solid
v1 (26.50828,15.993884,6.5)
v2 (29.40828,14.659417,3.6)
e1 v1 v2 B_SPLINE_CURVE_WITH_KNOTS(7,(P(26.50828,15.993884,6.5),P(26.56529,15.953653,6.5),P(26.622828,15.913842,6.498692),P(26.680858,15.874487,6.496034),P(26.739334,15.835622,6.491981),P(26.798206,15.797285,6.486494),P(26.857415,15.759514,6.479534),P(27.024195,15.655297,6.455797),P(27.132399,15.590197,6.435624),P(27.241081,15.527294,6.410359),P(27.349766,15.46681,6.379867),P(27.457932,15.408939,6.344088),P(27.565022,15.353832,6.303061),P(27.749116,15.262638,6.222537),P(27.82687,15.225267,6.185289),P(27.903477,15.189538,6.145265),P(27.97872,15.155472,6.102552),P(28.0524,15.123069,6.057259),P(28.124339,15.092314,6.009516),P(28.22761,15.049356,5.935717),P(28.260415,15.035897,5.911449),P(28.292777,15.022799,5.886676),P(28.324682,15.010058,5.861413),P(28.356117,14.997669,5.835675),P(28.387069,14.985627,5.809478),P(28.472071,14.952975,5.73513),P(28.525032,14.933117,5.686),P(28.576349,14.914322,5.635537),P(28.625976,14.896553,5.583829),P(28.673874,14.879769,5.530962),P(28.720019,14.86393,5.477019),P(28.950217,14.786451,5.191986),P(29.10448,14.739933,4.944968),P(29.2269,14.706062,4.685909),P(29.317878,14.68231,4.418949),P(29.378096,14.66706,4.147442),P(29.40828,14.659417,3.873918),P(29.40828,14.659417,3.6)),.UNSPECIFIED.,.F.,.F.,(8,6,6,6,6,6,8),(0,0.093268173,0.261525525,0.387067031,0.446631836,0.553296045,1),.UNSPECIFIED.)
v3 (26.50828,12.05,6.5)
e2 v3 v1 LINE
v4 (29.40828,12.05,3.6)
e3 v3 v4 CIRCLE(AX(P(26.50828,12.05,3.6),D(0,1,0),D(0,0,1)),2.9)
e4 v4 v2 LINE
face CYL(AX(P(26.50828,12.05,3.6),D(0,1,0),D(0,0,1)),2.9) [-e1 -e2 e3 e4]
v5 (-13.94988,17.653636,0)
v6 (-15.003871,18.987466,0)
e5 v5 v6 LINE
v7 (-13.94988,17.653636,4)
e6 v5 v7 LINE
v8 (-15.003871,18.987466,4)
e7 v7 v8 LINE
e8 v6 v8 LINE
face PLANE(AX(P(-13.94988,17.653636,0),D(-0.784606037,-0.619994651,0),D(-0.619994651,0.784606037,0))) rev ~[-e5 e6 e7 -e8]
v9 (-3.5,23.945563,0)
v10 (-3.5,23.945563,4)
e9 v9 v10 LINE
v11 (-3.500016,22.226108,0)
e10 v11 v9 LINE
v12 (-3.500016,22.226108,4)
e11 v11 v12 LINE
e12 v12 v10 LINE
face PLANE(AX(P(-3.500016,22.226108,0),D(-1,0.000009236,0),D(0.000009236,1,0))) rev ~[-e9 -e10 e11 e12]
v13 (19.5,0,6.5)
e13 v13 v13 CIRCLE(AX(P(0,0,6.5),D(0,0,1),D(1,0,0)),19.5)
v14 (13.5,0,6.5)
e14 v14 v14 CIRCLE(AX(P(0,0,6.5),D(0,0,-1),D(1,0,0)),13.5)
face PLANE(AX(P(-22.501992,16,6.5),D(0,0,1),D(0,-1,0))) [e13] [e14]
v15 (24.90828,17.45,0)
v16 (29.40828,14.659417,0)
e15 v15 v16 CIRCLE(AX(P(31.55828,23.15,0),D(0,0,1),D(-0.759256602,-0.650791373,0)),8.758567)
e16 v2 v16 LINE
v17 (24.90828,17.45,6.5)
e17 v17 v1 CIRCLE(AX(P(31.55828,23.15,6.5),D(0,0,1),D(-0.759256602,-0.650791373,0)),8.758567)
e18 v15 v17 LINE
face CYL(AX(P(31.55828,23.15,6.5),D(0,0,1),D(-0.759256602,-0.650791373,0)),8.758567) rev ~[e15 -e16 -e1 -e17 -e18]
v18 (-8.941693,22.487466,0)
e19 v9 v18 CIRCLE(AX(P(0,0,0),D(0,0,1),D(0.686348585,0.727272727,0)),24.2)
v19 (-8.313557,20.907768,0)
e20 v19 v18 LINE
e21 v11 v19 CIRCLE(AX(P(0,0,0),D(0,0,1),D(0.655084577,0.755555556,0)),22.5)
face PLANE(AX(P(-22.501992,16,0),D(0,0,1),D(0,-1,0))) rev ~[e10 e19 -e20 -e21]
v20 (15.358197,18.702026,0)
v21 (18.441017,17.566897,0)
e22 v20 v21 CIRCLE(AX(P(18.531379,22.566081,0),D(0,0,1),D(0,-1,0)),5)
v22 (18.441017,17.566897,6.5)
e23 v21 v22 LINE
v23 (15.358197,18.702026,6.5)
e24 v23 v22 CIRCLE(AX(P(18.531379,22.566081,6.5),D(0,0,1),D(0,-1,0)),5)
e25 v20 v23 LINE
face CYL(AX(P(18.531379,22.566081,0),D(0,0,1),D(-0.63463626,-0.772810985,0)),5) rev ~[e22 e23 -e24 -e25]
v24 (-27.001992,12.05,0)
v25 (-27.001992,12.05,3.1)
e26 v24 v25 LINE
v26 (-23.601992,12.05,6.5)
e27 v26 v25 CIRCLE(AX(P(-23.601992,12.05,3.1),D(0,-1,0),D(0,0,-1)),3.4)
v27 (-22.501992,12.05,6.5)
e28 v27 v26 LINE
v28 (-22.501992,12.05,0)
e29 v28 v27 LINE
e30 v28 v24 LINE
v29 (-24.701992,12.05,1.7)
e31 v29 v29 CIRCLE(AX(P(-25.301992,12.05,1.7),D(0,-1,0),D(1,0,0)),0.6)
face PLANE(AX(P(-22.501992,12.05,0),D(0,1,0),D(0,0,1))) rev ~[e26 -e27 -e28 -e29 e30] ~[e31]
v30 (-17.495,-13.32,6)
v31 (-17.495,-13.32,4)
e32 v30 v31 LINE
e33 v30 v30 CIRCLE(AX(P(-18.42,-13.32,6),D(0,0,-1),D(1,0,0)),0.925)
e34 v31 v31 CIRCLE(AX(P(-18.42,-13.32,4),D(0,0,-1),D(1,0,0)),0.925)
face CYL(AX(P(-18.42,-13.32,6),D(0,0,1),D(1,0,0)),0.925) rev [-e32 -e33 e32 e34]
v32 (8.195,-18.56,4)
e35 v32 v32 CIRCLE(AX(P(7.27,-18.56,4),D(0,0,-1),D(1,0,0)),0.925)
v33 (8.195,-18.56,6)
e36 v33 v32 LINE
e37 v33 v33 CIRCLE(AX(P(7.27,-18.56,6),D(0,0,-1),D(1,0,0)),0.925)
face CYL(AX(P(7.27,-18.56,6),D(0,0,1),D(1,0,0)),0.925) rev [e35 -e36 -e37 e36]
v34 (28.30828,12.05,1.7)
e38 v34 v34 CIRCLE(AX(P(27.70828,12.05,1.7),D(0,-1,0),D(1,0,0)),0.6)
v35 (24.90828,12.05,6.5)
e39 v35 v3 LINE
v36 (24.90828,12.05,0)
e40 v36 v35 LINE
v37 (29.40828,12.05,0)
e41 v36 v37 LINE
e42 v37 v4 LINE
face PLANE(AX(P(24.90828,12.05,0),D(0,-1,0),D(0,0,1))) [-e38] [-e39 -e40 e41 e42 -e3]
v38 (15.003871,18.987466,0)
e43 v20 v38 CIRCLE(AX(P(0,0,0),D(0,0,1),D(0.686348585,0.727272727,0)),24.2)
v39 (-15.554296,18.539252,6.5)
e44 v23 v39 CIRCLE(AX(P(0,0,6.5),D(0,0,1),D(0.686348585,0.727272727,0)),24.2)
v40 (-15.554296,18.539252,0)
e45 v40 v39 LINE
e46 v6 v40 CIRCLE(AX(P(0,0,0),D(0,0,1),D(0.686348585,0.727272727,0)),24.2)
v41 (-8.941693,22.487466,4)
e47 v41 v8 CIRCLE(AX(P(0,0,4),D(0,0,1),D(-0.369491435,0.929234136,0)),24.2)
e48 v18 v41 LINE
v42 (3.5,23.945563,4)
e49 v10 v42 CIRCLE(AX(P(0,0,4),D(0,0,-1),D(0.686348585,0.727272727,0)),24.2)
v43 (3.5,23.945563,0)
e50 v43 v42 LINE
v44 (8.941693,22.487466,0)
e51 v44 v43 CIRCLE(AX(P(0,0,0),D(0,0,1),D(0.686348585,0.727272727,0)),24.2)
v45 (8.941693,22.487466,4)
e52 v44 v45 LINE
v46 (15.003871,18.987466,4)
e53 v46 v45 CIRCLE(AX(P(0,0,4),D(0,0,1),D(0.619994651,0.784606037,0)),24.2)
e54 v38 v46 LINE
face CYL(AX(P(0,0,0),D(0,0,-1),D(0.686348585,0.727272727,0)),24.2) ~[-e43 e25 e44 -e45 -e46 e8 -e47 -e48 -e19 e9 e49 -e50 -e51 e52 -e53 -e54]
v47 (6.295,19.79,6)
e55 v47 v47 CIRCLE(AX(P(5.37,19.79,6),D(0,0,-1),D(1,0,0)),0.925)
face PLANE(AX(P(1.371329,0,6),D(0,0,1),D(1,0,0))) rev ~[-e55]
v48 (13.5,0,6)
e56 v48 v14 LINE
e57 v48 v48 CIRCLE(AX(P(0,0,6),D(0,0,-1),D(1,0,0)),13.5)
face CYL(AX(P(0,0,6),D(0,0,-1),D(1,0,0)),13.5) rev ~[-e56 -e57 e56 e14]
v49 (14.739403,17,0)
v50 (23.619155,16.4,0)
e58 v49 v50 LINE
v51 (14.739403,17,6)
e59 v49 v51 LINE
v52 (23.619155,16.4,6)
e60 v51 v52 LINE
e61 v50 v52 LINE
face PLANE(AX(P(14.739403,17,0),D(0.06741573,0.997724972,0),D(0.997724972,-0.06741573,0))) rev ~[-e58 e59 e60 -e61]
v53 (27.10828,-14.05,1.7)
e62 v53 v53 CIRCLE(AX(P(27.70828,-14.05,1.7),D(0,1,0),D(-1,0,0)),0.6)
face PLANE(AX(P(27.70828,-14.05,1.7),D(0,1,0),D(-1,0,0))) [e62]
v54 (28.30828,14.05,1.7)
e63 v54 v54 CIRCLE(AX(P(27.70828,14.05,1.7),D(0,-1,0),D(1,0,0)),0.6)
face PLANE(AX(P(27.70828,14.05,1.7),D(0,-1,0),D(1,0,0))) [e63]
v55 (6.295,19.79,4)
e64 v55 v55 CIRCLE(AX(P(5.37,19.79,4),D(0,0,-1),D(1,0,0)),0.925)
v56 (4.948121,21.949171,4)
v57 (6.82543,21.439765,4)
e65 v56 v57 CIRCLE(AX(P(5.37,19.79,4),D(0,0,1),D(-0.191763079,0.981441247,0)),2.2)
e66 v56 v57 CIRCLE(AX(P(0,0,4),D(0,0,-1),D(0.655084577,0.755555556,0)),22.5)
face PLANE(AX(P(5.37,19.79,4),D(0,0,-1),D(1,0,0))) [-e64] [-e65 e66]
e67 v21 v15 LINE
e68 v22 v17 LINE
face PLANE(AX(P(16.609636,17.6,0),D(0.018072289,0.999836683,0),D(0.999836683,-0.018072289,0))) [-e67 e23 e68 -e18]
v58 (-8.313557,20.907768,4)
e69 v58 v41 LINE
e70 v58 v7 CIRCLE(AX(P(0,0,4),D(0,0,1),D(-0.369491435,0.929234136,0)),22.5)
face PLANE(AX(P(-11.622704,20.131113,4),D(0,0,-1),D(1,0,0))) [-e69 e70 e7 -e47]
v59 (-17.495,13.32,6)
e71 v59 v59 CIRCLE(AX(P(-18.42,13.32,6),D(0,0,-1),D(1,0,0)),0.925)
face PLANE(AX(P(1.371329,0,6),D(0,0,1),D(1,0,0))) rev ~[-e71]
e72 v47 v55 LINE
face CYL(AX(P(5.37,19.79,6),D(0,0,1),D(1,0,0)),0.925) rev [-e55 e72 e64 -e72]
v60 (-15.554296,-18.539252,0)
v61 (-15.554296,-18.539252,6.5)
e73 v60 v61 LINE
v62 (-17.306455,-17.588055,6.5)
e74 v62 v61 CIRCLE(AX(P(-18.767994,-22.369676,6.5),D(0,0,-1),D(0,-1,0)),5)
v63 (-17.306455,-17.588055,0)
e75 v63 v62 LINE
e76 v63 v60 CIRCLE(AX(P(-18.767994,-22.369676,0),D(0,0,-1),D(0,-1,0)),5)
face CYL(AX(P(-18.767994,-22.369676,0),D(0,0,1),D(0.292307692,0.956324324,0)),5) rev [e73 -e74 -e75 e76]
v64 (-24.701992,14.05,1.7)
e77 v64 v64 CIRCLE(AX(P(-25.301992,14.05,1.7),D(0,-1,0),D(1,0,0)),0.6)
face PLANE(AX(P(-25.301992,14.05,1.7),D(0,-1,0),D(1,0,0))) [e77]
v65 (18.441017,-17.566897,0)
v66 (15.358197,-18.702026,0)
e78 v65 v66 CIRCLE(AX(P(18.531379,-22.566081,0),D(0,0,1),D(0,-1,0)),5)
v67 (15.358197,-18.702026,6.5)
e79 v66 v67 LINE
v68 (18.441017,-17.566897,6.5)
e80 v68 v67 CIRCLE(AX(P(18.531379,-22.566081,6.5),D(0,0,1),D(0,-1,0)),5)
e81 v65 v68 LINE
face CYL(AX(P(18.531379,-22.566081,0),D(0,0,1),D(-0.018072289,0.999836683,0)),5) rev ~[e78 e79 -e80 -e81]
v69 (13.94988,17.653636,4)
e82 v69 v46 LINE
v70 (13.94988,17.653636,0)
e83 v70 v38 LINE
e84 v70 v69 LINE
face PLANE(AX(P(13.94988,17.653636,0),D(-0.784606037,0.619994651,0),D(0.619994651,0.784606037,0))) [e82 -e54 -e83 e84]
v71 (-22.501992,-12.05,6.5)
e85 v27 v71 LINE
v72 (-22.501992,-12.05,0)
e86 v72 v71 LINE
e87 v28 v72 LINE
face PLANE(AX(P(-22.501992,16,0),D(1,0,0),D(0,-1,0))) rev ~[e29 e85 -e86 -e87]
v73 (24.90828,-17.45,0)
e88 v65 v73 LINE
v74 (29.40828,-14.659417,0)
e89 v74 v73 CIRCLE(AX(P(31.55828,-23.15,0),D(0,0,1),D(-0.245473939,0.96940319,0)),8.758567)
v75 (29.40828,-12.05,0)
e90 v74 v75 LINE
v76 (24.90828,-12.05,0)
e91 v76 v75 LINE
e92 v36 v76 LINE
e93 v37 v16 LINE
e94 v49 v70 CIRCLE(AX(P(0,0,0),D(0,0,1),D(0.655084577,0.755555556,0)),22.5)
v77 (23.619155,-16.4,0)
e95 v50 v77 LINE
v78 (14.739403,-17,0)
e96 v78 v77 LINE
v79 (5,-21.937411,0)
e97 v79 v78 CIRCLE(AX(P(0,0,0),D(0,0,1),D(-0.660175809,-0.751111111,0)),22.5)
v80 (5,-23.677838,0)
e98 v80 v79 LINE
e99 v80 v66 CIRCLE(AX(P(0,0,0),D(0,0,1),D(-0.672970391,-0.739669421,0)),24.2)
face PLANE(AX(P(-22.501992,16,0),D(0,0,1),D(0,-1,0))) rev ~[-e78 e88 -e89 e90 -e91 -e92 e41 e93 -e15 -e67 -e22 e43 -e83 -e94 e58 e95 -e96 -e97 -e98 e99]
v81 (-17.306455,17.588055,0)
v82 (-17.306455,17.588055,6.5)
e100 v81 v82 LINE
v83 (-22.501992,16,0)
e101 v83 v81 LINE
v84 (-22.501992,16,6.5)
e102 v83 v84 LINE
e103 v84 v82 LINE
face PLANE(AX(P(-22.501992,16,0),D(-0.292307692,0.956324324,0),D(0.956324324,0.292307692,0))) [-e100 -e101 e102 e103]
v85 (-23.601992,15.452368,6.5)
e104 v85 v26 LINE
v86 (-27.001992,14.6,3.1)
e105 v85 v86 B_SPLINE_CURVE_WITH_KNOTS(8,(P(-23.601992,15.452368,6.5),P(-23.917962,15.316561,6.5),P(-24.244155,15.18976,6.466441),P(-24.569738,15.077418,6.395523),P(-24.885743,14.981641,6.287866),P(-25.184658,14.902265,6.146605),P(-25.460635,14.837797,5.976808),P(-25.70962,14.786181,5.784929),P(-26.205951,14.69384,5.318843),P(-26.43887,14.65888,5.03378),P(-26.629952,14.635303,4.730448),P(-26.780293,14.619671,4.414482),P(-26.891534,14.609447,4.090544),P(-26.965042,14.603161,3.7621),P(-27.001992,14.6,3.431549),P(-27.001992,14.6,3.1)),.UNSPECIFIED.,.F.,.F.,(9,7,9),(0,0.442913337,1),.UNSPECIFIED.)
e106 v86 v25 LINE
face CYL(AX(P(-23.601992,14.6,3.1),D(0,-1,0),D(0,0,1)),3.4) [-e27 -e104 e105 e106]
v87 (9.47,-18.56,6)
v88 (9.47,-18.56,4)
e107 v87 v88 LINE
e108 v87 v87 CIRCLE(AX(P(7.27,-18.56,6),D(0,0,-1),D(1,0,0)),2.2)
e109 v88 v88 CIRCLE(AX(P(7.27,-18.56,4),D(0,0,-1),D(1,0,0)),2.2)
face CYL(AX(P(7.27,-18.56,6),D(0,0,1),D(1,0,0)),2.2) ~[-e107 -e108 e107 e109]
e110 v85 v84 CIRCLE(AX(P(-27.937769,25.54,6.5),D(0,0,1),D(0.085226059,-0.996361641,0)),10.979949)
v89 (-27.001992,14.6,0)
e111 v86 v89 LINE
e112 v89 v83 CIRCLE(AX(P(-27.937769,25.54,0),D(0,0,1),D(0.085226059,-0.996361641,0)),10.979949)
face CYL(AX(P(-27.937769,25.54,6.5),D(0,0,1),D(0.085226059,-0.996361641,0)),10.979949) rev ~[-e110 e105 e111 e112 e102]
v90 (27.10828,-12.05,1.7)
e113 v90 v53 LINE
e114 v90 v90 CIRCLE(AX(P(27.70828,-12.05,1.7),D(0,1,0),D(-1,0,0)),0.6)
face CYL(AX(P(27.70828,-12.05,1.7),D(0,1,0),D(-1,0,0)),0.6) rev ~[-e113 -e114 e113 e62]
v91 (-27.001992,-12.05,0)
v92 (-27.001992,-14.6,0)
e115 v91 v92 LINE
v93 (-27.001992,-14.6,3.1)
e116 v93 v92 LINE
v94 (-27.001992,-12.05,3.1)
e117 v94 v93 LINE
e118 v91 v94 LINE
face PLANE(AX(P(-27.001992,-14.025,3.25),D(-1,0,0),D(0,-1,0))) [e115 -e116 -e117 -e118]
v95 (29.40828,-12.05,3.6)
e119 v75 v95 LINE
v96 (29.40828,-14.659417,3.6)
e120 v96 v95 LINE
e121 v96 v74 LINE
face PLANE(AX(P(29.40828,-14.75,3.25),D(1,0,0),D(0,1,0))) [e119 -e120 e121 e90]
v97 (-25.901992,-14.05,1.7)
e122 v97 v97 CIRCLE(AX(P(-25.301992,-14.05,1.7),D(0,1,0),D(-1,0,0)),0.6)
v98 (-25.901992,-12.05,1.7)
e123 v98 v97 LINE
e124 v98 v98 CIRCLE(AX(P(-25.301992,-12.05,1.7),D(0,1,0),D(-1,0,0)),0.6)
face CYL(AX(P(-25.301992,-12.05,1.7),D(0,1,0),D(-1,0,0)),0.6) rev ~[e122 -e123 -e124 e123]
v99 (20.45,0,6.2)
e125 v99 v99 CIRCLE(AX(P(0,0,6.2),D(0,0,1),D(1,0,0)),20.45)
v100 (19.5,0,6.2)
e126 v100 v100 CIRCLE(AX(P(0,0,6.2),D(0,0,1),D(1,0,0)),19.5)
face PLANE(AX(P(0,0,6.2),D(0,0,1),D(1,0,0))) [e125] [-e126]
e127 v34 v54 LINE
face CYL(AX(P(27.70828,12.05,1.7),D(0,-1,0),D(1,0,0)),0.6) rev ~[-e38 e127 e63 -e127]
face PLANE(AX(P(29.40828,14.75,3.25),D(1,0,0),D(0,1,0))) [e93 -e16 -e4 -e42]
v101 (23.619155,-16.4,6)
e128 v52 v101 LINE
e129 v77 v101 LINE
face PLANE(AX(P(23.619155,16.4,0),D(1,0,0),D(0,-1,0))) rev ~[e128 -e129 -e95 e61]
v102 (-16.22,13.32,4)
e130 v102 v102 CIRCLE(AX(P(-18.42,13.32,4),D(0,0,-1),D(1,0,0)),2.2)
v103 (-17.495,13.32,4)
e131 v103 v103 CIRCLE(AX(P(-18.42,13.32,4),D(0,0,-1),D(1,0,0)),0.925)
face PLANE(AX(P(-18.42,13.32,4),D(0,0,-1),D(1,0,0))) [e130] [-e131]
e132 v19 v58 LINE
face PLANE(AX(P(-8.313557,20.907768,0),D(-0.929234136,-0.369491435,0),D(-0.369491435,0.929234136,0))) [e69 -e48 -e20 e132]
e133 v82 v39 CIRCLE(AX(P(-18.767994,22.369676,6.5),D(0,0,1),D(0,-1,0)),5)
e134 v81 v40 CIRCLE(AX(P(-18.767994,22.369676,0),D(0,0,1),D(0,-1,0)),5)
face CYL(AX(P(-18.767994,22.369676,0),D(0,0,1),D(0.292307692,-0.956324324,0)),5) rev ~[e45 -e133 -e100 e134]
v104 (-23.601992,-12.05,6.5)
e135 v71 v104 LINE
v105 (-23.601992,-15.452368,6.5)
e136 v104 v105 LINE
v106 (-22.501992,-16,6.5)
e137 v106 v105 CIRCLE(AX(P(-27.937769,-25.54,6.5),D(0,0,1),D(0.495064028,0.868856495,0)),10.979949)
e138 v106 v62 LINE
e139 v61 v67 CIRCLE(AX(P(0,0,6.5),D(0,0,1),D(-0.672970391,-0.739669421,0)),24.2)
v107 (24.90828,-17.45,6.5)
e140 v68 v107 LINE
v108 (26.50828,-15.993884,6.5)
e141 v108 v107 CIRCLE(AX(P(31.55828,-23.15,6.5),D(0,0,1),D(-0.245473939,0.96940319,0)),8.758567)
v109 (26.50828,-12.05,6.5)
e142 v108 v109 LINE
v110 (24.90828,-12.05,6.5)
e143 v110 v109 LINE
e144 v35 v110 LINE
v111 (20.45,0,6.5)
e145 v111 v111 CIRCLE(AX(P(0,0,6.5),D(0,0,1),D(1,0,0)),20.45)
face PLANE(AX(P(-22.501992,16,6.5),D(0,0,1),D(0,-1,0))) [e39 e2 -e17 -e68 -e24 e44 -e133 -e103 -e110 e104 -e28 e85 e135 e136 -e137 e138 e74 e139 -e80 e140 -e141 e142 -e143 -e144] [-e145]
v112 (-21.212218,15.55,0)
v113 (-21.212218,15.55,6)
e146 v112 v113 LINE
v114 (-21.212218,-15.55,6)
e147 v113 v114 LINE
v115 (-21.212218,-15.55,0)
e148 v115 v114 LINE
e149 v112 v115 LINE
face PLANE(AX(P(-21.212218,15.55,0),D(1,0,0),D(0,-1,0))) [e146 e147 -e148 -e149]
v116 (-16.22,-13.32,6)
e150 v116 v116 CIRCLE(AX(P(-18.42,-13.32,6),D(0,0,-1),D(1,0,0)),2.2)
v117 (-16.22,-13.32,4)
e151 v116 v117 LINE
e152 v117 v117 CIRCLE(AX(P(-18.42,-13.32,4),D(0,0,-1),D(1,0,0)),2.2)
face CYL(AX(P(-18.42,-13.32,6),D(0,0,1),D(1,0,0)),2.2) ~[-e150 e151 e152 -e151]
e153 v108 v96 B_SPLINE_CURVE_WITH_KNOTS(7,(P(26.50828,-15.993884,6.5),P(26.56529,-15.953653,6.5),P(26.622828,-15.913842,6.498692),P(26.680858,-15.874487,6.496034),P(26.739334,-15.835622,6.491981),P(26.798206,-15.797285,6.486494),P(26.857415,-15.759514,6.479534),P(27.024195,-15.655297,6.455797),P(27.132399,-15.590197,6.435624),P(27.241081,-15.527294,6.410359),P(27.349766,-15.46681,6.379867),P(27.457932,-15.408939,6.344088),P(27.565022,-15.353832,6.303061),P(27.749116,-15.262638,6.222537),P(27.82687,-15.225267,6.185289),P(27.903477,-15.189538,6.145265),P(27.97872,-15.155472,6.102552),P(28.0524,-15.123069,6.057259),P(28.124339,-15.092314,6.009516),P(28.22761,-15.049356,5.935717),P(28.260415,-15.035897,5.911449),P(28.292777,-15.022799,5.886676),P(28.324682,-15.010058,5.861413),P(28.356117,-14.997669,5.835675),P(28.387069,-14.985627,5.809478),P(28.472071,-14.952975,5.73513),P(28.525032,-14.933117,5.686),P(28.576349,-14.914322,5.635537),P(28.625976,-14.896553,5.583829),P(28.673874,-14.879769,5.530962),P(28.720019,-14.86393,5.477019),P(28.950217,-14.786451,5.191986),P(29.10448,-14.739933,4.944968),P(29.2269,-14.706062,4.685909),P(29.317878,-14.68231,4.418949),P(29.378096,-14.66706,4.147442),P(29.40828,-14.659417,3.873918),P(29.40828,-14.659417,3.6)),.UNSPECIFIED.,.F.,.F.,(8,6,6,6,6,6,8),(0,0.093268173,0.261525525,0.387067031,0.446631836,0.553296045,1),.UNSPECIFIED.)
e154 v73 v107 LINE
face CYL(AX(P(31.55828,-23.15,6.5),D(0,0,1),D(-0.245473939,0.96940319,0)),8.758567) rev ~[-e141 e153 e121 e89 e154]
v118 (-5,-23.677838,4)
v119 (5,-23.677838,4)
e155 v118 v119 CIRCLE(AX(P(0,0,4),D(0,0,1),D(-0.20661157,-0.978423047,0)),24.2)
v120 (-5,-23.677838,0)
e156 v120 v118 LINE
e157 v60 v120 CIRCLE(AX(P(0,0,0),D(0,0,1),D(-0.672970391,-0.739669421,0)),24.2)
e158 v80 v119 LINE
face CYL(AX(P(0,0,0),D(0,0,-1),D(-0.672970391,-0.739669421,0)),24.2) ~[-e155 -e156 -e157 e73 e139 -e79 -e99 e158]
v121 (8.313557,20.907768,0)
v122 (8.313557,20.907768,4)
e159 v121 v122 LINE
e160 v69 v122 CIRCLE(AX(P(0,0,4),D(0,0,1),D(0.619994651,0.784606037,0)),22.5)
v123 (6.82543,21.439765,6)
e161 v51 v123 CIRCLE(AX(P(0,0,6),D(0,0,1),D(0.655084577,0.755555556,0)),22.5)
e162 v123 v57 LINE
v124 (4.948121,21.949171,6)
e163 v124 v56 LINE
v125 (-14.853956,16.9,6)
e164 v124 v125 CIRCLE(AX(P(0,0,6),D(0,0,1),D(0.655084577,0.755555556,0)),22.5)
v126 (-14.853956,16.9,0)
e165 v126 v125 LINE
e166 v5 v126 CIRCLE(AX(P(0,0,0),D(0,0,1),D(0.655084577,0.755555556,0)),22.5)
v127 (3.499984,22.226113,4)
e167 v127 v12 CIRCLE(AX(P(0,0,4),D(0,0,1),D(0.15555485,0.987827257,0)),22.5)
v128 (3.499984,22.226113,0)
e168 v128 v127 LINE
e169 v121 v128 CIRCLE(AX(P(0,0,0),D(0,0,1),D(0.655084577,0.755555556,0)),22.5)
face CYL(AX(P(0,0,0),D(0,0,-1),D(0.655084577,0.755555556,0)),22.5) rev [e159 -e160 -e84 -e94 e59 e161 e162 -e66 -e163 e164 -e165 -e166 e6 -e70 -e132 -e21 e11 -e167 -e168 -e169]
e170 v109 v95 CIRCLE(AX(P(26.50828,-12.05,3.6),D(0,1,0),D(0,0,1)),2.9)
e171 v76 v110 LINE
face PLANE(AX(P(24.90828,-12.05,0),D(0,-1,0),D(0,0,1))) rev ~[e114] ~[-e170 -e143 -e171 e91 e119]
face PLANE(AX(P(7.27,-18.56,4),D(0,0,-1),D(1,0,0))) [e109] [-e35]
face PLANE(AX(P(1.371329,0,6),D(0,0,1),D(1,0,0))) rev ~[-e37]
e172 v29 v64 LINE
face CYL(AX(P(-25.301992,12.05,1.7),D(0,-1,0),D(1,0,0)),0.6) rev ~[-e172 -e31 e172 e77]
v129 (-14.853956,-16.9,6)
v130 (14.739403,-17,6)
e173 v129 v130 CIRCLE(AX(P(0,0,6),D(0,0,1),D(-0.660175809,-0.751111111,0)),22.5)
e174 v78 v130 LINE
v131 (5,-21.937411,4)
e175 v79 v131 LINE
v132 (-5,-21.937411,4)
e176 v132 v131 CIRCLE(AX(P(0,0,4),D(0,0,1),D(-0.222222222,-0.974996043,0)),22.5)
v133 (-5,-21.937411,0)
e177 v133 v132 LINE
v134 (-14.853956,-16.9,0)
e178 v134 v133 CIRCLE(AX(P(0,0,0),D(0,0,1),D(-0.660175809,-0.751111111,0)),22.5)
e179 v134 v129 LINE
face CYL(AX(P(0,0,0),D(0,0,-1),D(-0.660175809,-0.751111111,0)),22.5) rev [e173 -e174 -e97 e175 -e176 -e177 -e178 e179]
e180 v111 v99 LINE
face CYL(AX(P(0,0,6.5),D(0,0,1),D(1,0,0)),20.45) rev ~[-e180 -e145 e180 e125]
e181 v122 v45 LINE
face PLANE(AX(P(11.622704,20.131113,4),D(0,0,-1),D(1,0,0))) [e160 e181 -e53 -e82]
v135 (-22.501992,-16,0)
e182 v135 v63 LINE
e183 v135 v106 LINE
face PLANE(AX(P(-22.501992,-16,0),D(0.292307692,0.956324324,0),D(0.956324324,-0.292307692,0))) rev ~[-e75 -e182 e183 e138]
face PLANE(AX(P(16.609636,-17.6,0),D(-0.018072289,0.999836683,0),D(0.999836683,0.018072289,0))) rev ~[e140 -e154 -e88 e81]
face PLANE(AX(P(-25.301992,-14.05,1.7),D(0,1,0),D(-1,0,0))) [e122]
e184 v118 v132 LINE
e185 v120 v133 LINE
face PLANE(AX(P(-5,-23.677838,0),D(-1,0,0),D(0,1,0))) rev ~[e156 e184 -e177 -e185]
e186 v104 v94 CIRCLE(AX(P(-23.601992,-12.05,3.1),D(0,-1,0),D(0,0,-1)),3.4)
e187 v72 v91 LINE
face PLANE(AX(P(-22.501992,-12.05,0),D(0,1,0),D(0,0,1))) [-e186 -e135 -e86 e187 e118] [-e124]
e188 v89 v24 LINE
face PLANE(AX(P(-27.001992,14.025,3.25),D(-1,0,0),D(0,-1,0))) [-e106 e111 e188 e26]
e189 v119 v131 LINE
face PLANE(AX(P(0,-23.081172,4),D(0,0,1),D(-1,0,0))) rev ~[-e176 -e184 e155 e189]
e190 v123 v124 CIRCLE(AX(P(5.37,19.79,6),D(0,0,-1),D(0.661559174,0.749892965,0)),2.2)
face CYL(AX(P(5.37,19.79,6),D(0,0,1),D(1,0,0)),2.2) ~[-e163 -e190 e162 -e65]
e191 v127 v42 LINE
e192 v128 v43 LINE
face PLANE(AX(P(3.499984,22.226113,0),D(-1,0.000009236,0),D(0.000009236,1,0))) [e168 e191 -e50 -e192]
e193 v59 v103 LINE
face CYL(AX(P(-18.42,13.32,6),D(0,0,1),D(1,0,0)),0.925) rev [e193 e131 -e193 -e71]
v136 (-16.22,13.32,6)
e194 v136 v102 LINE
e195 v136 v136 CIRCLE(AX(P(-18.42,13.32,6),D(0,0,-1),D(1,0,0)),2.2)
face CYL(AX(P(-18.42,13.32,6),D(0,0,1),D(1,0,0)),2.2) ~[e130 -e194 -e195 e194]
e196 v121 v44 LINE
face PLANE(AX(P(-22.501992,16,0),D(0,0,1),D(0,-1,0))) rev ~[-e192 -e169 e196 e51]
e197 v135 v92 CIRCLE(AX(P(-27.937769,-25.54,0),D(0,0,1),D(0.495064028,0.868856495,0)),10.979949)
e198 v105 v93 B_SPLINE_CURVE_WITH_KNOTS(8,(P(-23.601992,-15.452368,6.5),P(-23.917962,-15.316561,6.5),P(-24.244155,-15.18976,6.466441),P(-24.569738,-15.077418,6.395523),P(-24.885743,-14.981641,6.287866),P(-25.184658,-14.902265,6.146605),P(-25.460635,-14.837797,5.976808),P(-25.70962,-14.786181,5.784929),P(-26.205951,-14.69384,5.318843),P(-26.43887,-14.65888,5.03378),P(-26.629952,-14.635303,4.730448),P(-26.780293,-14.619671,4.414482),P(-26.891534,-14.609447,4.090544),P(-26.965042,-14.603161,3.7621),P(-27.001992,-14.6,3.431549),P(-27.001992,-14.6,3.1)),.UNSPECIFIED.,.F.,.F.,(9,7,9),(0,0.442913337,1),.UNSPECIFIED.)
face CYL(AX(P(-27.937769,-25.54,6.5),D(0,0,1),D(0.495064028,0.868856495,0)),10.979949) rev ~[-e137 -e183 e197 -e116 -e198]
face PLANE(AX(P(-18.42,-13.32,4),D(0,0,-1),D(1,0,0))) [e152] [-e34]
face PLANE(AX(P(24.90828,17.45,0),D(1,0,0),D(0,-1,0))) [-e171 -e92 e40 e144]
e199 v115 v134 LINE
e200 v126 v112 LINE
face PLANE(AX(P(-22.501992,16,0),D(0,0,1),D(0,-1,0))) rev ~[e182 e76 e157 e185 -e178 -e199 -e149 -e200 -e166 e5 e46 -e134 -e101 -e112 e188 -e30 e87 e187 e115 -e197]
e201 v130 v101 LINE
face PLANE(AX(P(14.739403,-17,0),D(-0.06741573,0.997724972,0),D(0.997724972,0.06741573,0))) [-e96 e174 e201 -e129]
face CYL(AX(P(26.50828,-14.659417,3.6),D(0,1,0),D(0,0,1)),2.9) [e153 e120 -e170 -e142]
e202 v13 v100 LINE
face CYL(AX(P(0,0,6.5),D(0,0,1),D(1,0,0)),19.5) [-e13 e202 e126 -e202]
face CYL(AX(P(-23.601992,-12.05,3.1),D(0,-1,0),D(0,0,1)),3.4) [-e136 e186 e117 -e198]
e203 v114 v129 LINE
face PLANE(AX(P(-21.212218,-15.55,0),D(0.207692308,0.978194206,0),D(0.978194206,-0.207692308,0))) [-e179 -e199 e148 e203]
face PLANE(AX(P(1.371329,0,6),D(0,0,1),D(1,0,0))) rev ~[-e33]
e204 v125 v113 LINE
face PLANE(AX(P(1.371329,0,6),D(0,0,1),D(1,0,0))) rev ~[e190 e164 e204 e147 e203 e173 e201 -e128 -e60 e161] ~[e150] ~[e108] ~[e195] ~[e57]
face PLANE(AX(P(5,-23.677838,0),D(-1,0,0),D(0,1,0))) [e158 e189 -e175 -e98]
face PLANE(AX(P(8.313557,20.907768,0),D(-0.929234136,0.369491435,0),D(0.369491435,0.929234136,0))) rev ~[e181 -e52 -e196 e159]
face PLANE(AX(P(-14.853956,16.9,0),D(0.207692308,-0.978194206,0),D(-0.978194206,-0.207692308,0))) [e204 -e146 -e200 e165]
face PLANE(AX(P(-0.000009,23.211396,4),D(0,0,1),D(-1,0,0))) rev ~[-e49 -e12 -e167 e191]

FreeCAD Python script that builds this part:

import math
import FreeCAD as App
import Part
import Sketcher


def edges_at(feature, points):
    """Names of the edges that pass closest to the given points."""
    edges = feature.Shape.Edges
    near = lambda p: min(range(len(edges)), key=lambda i: edges[i].distToShape(Part.Vertex(*p))[0])
    return sorted({f"Edge{near(p) + 1}" for p in points})


def add_polygon(sketch, points):
    """Adds a closed chain of lines whose ends are joined by coincident constraints."""
    first, n = sketch.GeometryCount, len(points)
    for a, b in zip(points, points[1:] + points[:1]):
        sketch.addGeometry(Part.LineSegment(App.Vector(*a, 0), App.Vector(*b, 0)), False)
    for i in range(n):
        sketch.addConstraint(Sketcher.Constraint("Coincident", first + i, 2, first + (i + 1) % n, 1))

doc = App.newDocument("Part")
body = doc.addObject("PartDesign::Body", "Body")

# Sketch on XY plane
sketch1 = body.newObject("Sketcher::SketchObject", "Sketch")
sketch1.AttachmentSupport = (doc.getObject("XY_Plane"), [""])
sketch1.MapMode = "FlatFace"
sketch1.addGeometry([
    Part.LineSegment(App.Vector(-23, 16, 0), App.Vector(-23, -16, 0)),  # 0
    Part.LineSegment(App.Vector(-23, -16, 0), App.Vector(-16, -18, 0)),  # 1
    Part.ArcOfCircle(Part.Circle(App.Vector(0, 0, 0), App.Vector(0, 0, 1), 24), math.radians(-132), math.radians(-47)),  # 2
    Part.LineSegment(App.Vector(17, -18, 0), App.Vector(25, -17, 0)),  # 3
    Part.LineSegment(App.Vector(25, -17, 0), App.Vector(25, 17, 0)),  # 4
    Part.LineSegment(App.Vector(25, 17, 0), App.Vector(17, 18, 0)),  # 5
    Part.ArcOfCircle(Part.Circle(App.Vector(0, 0, 0), App.Vector(0, 0, 1), 24), math.radians(47), math.radians(132)),  # 6
    Part.LineSegment(App.Vector(-16, 18, 0), App.Vector(-23, 16, 0)),  # 7
], False)
sketch1.addConstraint([
    Sketcher.Constraint("Coincident", 0, 2, 1, 1),
    Sketcher.Constraint("Coincident", 1, 2, 2, 1),
    Sketcher.Constraint("Coincident", 2, 2, 3, 1),
    Sketcher.Constraint("Coincident", 3, 2, 4, 1),
    Sketcher.Constraint("Coincident", 4, 2, 5, 1),
    Sketcher.Constraint("Coincident", 5, 2, 6, 1),
    Sketcher.Constraint("Coincident", 6, 2, 7, 1),
    Sketcher.Constraint("Coincident", 7, 2, 0, 1),
    Sketcher.Constraint("Vertical", 0),
    Sketcher.Constraint("Vertical", 4),
    Sketcher.Constraint("Coincident", 2, 3, -1, 1),
    Sketcher.Constraint("Coincident", 6, 3, -1, 1),
    Sketcher.Constraint("Equal", 2, 6),
    Sketcher.Constraint("Vertical", 2, 2, 5, 2),
    Sketcher.Constraint("Vertical", 1, 2, 6, 2),
    Sketcher.Constraint("Equal", 3, 5),
    Sketcher.Constraint("Equal", 1, 7),
    Sketcher.Constraint("Radius", 2, 24.2),
    Sketcher.Constraint("DistanceY", 0, 2, 0, 1, 32.0),
    Sketcher.Constraint("DistanceY", 4, 1, 4, 2, 34.9),
    Sketcher.Constraint("Distance", 1, 6.5),
    Sketcher.Constraint("Distance", 3, 8.3),
    Sketcher.Constraint("DistanceY", 1, 2, -1, 1, 17.9),
    Sketcher.Constraint("DistanceY", 2, 2, -1, 1, 17.6),
])
pad1 = body.newObject("PartDesign::Pad", "Pad")
pad1.Profile = sketch1
pad1.Length = 6.5

# Sketch on XY plane
sketch2 = body.newObject("Sketcher::SketchObject", "Sketch001")
sketch2.AttachmentSupport = (doc.getObject("XY_Plane"), [""])
sketch2.MapMode = "FlatFace"
sketch2.addGeometry([
    Part.LineSegment(App.Vector(-15, 17, 0), App.Vector(-21, 16, 0)),  # 0
    Part.LineSegment(App.Vector(-21, 16, 0), App.Vector(-21, -16, 0)),  # 1
    Part.LineSegment(App.Vector(-21, -16, 0), App.Vector(-15, -17, 0)),  # 2
    Part.ArcOfCircle(Part.Circle(App.Vector(0, 0, 0), App.Vector(0, 0, 1), 22), math.radians(-131), math.radians(-49)),  # 3
    Part.LineSegment(App.Vector(15, -17, 0), App.Vector(24, -16, 0)),  # 4
    Part.LineSegment(App.Vector(24, -16, 0), App.Vector(24, 16, 0)),  # 5
    Part.LineSegment(App.Vector(24, 16, 0), App.Vector(15, 17, 0)),  # 6
    Part.ArcOfCircle(Part.Circle(App.Vector(0, 0, 0), App.Vector(0, 0, 1), 22), math.radians(49), math.radians(131)),  # 7
], False)
sketch2.addConstraint([
    Sketcher.Constraint("Coincident", 0, 2, 1, 1),
    Sketcher.Constraint("Coincident", 1, 2, 2, 1),
    Sketcher.Constraint("Coincident", 2, 2, 3, 1),
    Sketcher.Constraint("Coincident", 3, 2, 4, 1),
    Sketcher.Constraint("Coincident", 4, 2, 5, 1),
    Sketcher.Constraint("Coincident", 5, 2, 6, 1),
    Sketcher.Constraint("Coincident", 6, 2, 7, 1),
    Sketcher.Constraint("Coincident", 7, 2, 0, 1),
    Sketcher.Constraint("Vertical", 1),
    Sketcher.Constraint("Vertical", 5),
    Sketcher.Constraint("Coincident", 3, 3, -1, 1),
    Sketcher.Constraint("Coincident", 7, 3, -1, 1),
    Sketcher.Constraint("Equal", 3, 7),
    Sketcher.Constraint("Vertical", 3, 2, 6, 2),
    Sketcher.Constraint("Vertical", 2, 2, 7, 2),
    Sketcher.Constraint("Equal", 0, 2),
    Sketcher.Constraint("Equal", 4, 6),
    Sketcher.Constraint("Radius", 3, 22.5),
    Sketcher.Constraint("DistanceY", 1, 2, 1, 1, 31.1),
    Sketcher.Constraint("DistanceY", 5, 1, 5, 2, 32.8),
    Sketcher.Constraint("DistanceY", 3, 2, -1, 1, 17.0),
    Sketcher.Constraint("Distance", 0, 6.5),
    Sketcher.Constraint("Distance", 4, 8.9),
    Sketcher.Constraint("DistanceY", 2, 2, -1, 1, 16.9),
])
pocket1 = body.newObject("PartDesign::Pocket", "Pocket")
pocket1.Profile = sketch2
pocket1.Length = 6
pocket1.Reversed = True

# Sketch on XY plane
sketch3 = body.newObject("Sketcher::SketchObject", "Sketch002")
sketch3.AttachmentSupport = (doc.getObject("XY_Plane"), [""])
sketch3.MapMode = "FlatFace"
sketch3.AttachmentOffset = App.Placement(App.Vector(0, 0, 6), App.Rotation())
sketch3.addGeometry(Part.Circle(App.Vector(0, 0, 0), App.Vector(0, 0, 1), 14), False)
sketch3.addConstraint([
    Sketcher.Constraint("Coincident", 0, 3, -1, 1),
    Sketcher.Constraint("Diameter", 0, 27.0),
])
pocket2 = body.newObject("PartDesign::Pocket", "Pocket001")
pocket2.Profile = sketch3
pocket2.Length = 1
pocket2.Reversed = True

# Sketch on YZ plane
sketch4 = body.newObject("Sketcher::SketchObject", "Sketch003")
sketch4.AttachmentSupport = (doc.getObject("YZ_Plane"), [""])
sketch4.MapMode = "FlatFace"
sketch4.AttachmentOffset = App.Placement(App.Vector(0, 0, 24.90828), App.Rotation())
add_polygon(sketch4, [(-17, 6), (-17, 0), (-12, 0), (-12, 6)])  # lines 0-3
add_polygon(sketch4, [(12, 6), (12, 0), (17, 0), (17, 6)])  # lines 4-7
sketch4.addConstraint([
    Sketcher.Constraint("Vertical", 0),
    Sketcher.Constraint("Horizontal", 1),
    Sketcher.Constraint("Vertical", 2),
    Sketcher.Constraint("Horizontal", 3),
    Sketcher.Constraint("Vertical", 4),
    Sketcher.Constraint("Horizontal", 5),
    Sketcher.Constraint("Vertical", 6),
    Sketcher.Constraint("Horizontal", 7),
    Sketcher.Constraint("Symmetric", 1, 2, 4, 2, -1, 1),
    Sketcher.Constraint("Symmetric", 0, 2, 5, 2, -2),
    Sketcher.Constraint("Horizontal", 3, 2, 6, 2),
    Sketcher.Constraint("DistanceX", 1, 1, 1, 2, 5.4),
    Sketcher.Constraint("DistanceY", 0, 2, 0, 1, 6.5),
    Sketcher.Constraint("DistanceX", 1, 2, 4, 2, 24.1),
])
pad2 = body.newObject("PartDesign::Pad", "Pad001")
pad2.Profile = sketch4
pad2.Length = 4.5

# Sketch on XY plane
sketch5 = body.newObject("Sketcher::SketchObject", "Sketch004")
sketch5.AttachmentSupport = (doc.getObject("XY_Plane"), [""])
sketch5.MapMode = "FlatFace"
sketch5.AttachmentOffset = App.Placement(App.Vector(0, 0, 6.5), App.Rotation())
sketch5.addGeometry([
    Part.ArcOfCircle(Part.Circle(App.Vector(31.6, 23.1, 0), App.Vector(0, 0, 1), 8.8), math.radians(-139), math.radians(-104)),  # 0
    Part.LineSegment(App.Vector(29.4, 14.7, 0), App.Vector(29.4, 17.4, 0)),  # 1
    Part.LineSegment(App.Vector(29.4, 17.4, 0), App.Vector(24.9, 17.4, 0)),  # 2
    Part.ArcOfCircle(Part.Circle(App.Vector(31.6, -23.1, 0), App.Vector(0, 0, 1), 8.8), math.radians(104), math.radians(139)),  # 3
    Part.LineSegment(App.Vector(24.9, -17.4, 0), App.Vector(29.4, -17.4, 0)),  # 4
    Part.LineSegment(App.Vector(29.4, -17.4, 0), App.Vector(29.4, -14.7, 0)),  # 5
], False)
sketch5.addConstraint([
    Sketcher.Constraint("Coincident", 0, 2, 1, 1),
    Sketcher.Constraint("Coincident", 1, 2, 2, 1),
    Sketcher.Constraint("Coincident", 2, 2, 0, 1),
    Sketcher.Constraint("Coincident", 3, 2, 4, 1),
    Sketcher.Constraint("Coincident", 4, 2, 5, 1),
    Sketcher.Constraint("Coincident", 5, 2, 3, 1),
    Sketcher.Constraint("Vertical", 1),
    Sketcher.Constraint("Horizontal", 2),
    Sketcher.Constraint("Horizontal", 4),
    Sketcher.Constraint("Vertical", 5),
    Sketcher.Constraint("Equal", 0, 3),
    Sketcher.Constraint("Symmetric", 0, 3, 3, 3, -1),
    Sketcher.Constraint("Symmetric", 1, 2, 4, 2, -1),
    Sketcher.Constraint("DistanceX", 2, 2, 2, 1, 4.5),
    Sketcher.Constraint("DistanceY", 3, 3, 0, 3, 46.3),
    Sketcher.Constraint("DistanceY", 1, 2, 0, 3, 5.7),
    Sketcher.Constraint("DistanceX", 0, 2, 0, 3, 2.15),
    Sketcher.Constraint("DistanceX", -1, 1, 0, 3, 31.55828),
])
pocket3 = body.newObject("PartDesign::Pocket", "Pocket002")
pocket3.Profile = sketch5
pocket3.Length = 10

# Sketch on XZ plane
sketch6 = body.newObject("Sketcher::SketchObject", "Sketch005")
sketch6.AttachmentSupport = (doc.getObject("XZ_Plane"), [""])
sketch6.MapMode = "FlatFace"
sketch6.AttachmentOffset = App.Placement(App.Vector(0, 0, 12.05), App.Rotation())
sketch6.addGeometry(Part.Circle(App.Vector(27.7, 1.7, 0), App.Vector(0, 0, 1), 0.6), False)
sketch6.addConstraint([
    Sketcher.Constraint("Diameter", 0, 1.2),
    Sketcher.Constraint("DistanceY", -1, 1, 0, 3, 1.7),
    Sketcher.Constraint("DistanceX", -1, 1, 0, 3, 27.70828),
])
pocket4 = body.newObject("PartDesign::Pocket", "Pocket003")
pocket4.Profile = sketch6
pocket4.Length = 2
pocket4.Reversed = True

# Sketch on XZ plane
sketch7 = body.newObject("Sketcher::SketchObject", "Sketch006")
sketch7.AttachmentSupport = (doc.getObject("XZ_Plane"), [""])
sketch7.MapMode = "FlatFace"
sketch7.AttachmentOffset = App.Placement(App.Vector(0, 0, -12.05), App.Rotation())
sketch7.addGeometry(Part.Circle(App.Vector(27.7, 1.7, 0), App.Vector(0, 0, 1), 0.6), False)
sketch7.addConstraint([
    Sketcher.Constraint("Diameter", 0, 1.2),
    Sketcher.Constraint("DistanceY", -1, 1, 0, 3, 1.7),
    Sketcher.Constraint("DistanceX", -1, 1, 0, 3, 27.70828),
])
pocket5 = body.newObject("PartDesign::Pocket", "Pocket004")
pocket5.Profile = sketch7
pocket5.Length = 2
doc.recompute()

fillet = body.newObject("PartDesign::Fillet", "Fillet")
fillet.Base = (pocket5, edges_at(pocket5, [(29.408, -13.355, 6.5)]))
fillet.Radius = 2.9
doc.recompute()

fillet2 = body.newObject("PartDesign::Fillet", "Fillet001")
fillet2.Base = (fillet, edges_at(fillet, [(29.408, 13.355, 6.5)]))
fillet2.Radius = 2.9
doc.recompute()

fillet3 = body.newObject("PartDesign::Fillet", "Fillet002")
fillet3.Base = (fillet2, edges_at(fillet2, [(16.61, -17.6, 3.25)]))
fillet3.Radius = 5
doc.recompute()

fillet4 = body.newObject("PartDesign::Fillet", "Fillet003")
fillet4.Base = (fillet3, edges_at(fillet3, [(16.61, 17.6, 3.25)]))
fillet4.Radius = 5
doc.recompute()

fillet5 = body.newObject("PartDesign::Fillet", "Fillet004")
fillet5.Base = (fillet4, edges_at(fillet4, [(-16.286, -17.9, 3.25)]))
fillet5.Radius = 5
doc.recompute()

fillet6 = body.newObject("PartDesign::Fillet", "Fillet005")
fillet6.Base = (fillet5, edges_at(fillet5, [(-16.286, 17.9, 3.25)]))
fillet6.Radius = 5

# Sketch on YZ plane
sketch8 = body.newObject("Sketcher::SketchObject", "Sketch007")
sketch8.AttachmentSupport = (doc.getObject("YZ_Plane"), [""])
sketch8.MapMode = "FlatFace"
sketch8.AttachmentOffset = App.Placement(App.Vector(0, 0, -22.501992), App.Rotation())
add_polygon(sketch8, [(16, 6.5), (16, 0), (12.1, 0), (12.1, 6.5)])  # lines 0-3
add_polygon(sketch8, [(-12.1, 6.5), (-12.1, 0), (-16, 0), (-16, 6.5)])  # lines 4-7
sketch8.addConstraint([
    Sketcher.Constraint("Vertical", 0),
    Sketcher.Constraint("Horizontal", 1),
    Sketcher.Constraint("Vertical", 2),
    Sketcher.Constraint("Horizontal", 3),
    Sketcher.Constraint("Vertical", 4),
    Sketcher.Constraint("Horizontal", 5),
    Sketcher.Constraint("Vertical", 6),
    Sketcher.Constraint("Horizontal", 7),
    Sketcher.Constraint("Symmetric", 1, 2, 4, 2, -1, 1),
    Sketcher.Constraint("Symmetric", 0, 2, 5, 2, -2),
    Sketcher.Constraint("Horizontal", 3, 2, 6, 2),
    Sketcher.Constraint("DistanceY", 0, 2, 0, 1, 6.5),
    Sketcher.Constraint("DistanceX", -1, 1, 0, 2, 16.0),
    Sketcher.Constraint("DistanceX", 1, 2, 1, 1, 3.95),
])
pad3 = body.newObject("PartDesign::Pad", "Pad002")
pad3.Profile = sketch8
pad3.Length = 4.5
pad3.Reversed = True

# Sketch on XY plane
sketch9 = body.newObject("Sketcher::SketchObject", "Sketch008")
sketch9.AttachmentSupport = (doc.getObject("XY_Plane"), [""])
sketch9.MapMode = "FlatFace"
sketch9.AttachmentOffset = App.Placement(App.Vector(0, 0, 6.5), App.Rotation())
sketch9.addGeometry([
    Part.ArcOfCircle(Part.Circle(App.Vector(-27.9, 25.5, 0), App.Vector(0, 0, 1), 11), math.radians(-85), math.radians(-60)),  # 0
    Part.LineSegment(App.Vector(-22.5, 16, 0), App.Vector(-27, 16, 0)),  # 1
    Part.LineSegment(App.Vector(-27, 16, 0), App.Vector(-27, 14.6, 0)),  # 2
    Part.ArcOfCircle(Part.Circle(App.Vector(-27.9, -25.5, 0), App.Vector(0, 0, 1), 11), math.radians(60), math.radians(85)),  # 3
    Part.LineSegment(App.Vector(-27, -14.6, 0), App.Vector(-27, -16, 0)),  # 4
    Part.LineSegment(App.Vector(-27, -16, 0), App.Vector(-22.5, -16, 0)),  # 5
], False)
sketch9.addConstraint([
    Sketcher.Constraint("Coincident", 0, 2, 1, 1),
    Sketcher.Constraint("Coincident", 1, 2, 2, 1),
    Sketcher.Constraint("Coincident", 2, 2, 0, 1),
    Sketcher.Constraint("Coincident", 3, 2, 4, 1),
    Sketcher.Constraint("Coincident", 4, 2, 5, 1),
    Sketcher.Constraint("Coincident", 5, 2, 3, 1),
    Sketcher.Constraint("Horizontal", 1),
    Sketcher.Constraint("Vertical", 2),
    Sketcher.Constraint("Vertical", 4),
    Sketcher.Constraint("Horizontal", 5),
    Sketcher.Constraint("Equal", 0, 3),
    Sketcher.Constraint("Symmetric", 0, 3, 3, 3, -1),
    Sketcher.Constraint("Symmetric", 1, 2, 4, 2, -1),
    Sketcher.Constraint("DistanceX", 1, 2, 1, 1, 4.5),
    Sketcher.Constraint("DistanceY", 2, 2, 2, 1, 1.4),
    Sketcher.Constraint("DistanceY", -1, 1, 0, 2, 16.0),
    Sketcher.Constraint("DistanceY", -1, 1, 0, 3, 25.54),
    Sketcher.Constraint("DistanceX", 0, 3, -1, 1, 27.937769),
])
pocket6 = body.newObject("PartDesign::Pocket", "Pocket005")
pocket6.Profile = sketch9
pocket6.Length = 10

# Sketch on XZ plane
sketch10 = body.newObject("Sketcher::SketchObject", "Sketch009")
sketch10.AttachmentSupport = (doc.getObject("XZ_Plane"), [""])
sketch10.MapMode = "FlatFace"
sketch10.AttachmentOffset = App.Placement(App.Vector(0, 0, 12.05), App.Rotation())
sketch10.addGeometry(Part.Circle(App.Vector(-25.3, 1.7, 0), App.Vector(0, 0, 1), 0.6), False)
sketch10.addConstraint([
    Sketcher.Constraint("Diameter", 0, 1.2),
    Sketcher.Constraint("DistanceY", -1, 1, 0, 3, 1.7),
    Sketcher.Constraint("DistanceX", 0, 3, -1, 1, 25.301992),
])
pocket7 = body.newObject("PartDesign::Pocket", "Pocket006")
pocket7.Profile = sketch10
pocket7.Length = 2
pocket7.Reversed = True

# Sketch on XZ plane
sketch11 = body.newObject("Sketcher::SketchObject", "Sketch010")
sketch11.AttachmentSupport = (doc.getObject("XZ_Plane"), [""])
sketch11.MapMode = "FlatFace"
sketch11.AttachmentOffset = App.Placement(App.Vector(0, 0, -12.05), App.Rotation())
sketch11.addGeometry(Part.Circle(App.Vector(-25.3, 1.7, 0), App.Vector(0, 0, 1), 0.6), False)
sketch11.addConstraint([
    Sketcher.Constraint("Diameter", 0, 1.2),
    Sketcher.Constraint("DistanceY", -1, 1, 0, 3, 1.7),
    Sketcher.Constraint("DistanceX", 0, 3, -1, 1, 25.301992),
])
pocket8 = body.newObject("PartDesign::Pocket", "Pocket007")
pocket8.Profile = sketch11
pocket8.Length = 2
doc.recompute()

fillet7 = body.newObject("PartDesign::Fillet", "Fillet006")
fillet7.Base = (pocket8, edges_at(pocket8, [(-27.002, 13.325, 6.5)]))
fillet7.Radius = 3.4
doc.recompute()

fillet8 = body.newObject("PartDesign::Fillet", "Fillet007")
fillet8.Base = (fillet7, edges_at(fillet7, [(-27.002, -13.325, 6.5)]))
fillet8.Radius = 3.4

# Sketch on XY plane
sketch12 = body.newObject("Sketcher::SketchObject", "Sketch011")
sketch12.AttachmentSupport = (doc.getObject("XY_Plane"), [""])
sketch12.MapMode = "FlatFace"
sketch12.AttachmentOffset = App.Placement(App.Vector(0, 0, 6.5), App.Rotation())
sketch12.addGeometry([
    Part.Circle(App.Vector(0, 0, 0), App.Vector(0, 0, 1), 20),
    Part.Circle(App.Vector(0, 0, 0), App.Vector(0, 0, 1), 20),
], False)
sketch12.addConstraint([
    Sketcher.Constraint("Coincident", 0, 3, -1, 1),
    Sketcher.Constraint("Coincident", 1, 3, -1, 1),
    Sketcher.Constraint("Diameter", 1, 39.0),
    Sketcher.Constraint("Diameter", 0, 40.9),
])
pocket9 = body.newObject("PartDesign::Pocket", "Pocket008")
pocket9.Profile = sketch12
pocket9.Length = 0.3

# Sketch on XY plane
sketch13 = body.newObject("Sketcher::SketchObject", "Sketch012")
sketch13.AttachmentSupport = (doc.getObject("XY_Plane"), [""])
sketch13.MapMode = "FlatFace"
sketch13.AttachmentOffset = App.Placement(App.Vector(0, 0, 6), App.Rotation())
sketch13.addGeometry([
    Part.Circle(App.Vector(-18.4, -13.3, 0), App.Vector(0, 0, 1), 2.2),  # 0
    Part.Circle(App.Vector(-18.4, -13.3, 0), App.Vector(0, 0, 1), 0.9),  # 1
    Part.Circle(App.Vector(7.3, -18.6, 0), App.Vector(0, 0, 1), 2.2),  # 2
    Part.Circle(App.Vector(7.3, -18.6, 0), App.Vector(0, 0, 1), 0.9),  # 3
    Part.Circle(App.Vector(5.4, 19.8, 0), App.Vector(0, 0, 1), 2.2),  # 4
    Part.Circle(App.Vector(5.4, 19.8, 0), App.Vector(0, 0, 1), 0.9),  # 5
    Part.Circle(App.Vector(-18.4, 13.3, 0), App.Vector(0, 0, 1), 2.2),  # 6
    Part.Circle(App.Vector(-18.4, 13.3, 0), App.Vector(0, 0, 1), 0.9),  # 7
], False)
sketch13.addConstraint([
    Sketcher.Constraint("Coincident", 1, 3, 0, 3),
    Sketcher.Constraint("Coincident", 3, 3, 2, 3),
    Sketcher.Constraint("Coincident", 5, 3, 4, 3),
    Sketcher.Constraint("Coincident", 7, 3, 6, 3),
    Sketcher.Constraint("Equal", 0, 2),
    Sketcher.Constraint("Equal", 1, 3),
    Sketcher.Constraint("Equal", 2, 4),
    Sketcher.Constraint("Equal", 3, 5),
    Sketcher.Constraint("Equal", 4, 6),
    Sketcher.Constraint("Equal", 5, 7),
    Sketcher.Constraint("Symmetric", 0, 3, 6, 3, -1),
    Sketcher.Constraint("Diameter", 0, 4.4),
    Sketcher.Constraint("Diameter", 1, 1.85),
    Sketcher.Constraint("DistanceX", 4, 3, 2, 3, 1.9),
    Sketcher.Constraint("DistanceX", 0, 3, -1, 1, 18.42),
    Sketcher.Constraint("DistanceY", 0, 3, -1, 1, 13.32),
    Sketcher.Constraint("DistanceX", -1, 1, 2, 3, 7.27),
    Sketcher.Constraint("DistanceY", 2, 3, -1, 1, 18.56),
    Sketcher.Constraint("DistanceY", -1, 1, 4, 3, 19.79),
])
pad4 = body.newObject("PartDesign::Pad", "Pad003")
pad4.Profile = sketch13
pad4.Length = 2
pad4.Reversed = True

# Sketch on XY plane
sketch14 = body.newObject("Sketcher::SketchObject", "Sketch013")
sketch14.AttachmentSupport = (doc.getObject("XY_Plane"), [""])
sketch14.MapMode = "FlatFace"
sketch14.addGeometry([
    Part.LineSegment(App.Vector(5, -23.7, 0), App.Vector(5, -21.9, 0)),
    Part.ArcOfCircle(Part.Circle(App.Vector(0, 0, 0), App.Vector(0, 0, 1), 22.5), math.radians(-103), math.radians(-77)),
    Part.LineSegment(App.Vector(-5, -21.9, 0), App.Vector(-5, -23.7, 0)),
    Part.ArcOfCircle(Part.Circle(App.Vector(0, 0, 0), App.Vector(0, 0, 1), 24.2), math.radians(-102), math.radians(-78)),
], False)
sketch14.addConstraint([
    Sketcher.Constraint("Coincident", 0, 2, 1, 2),
    Sketcher.Constraint("Coincident", 1, 1, 2, 1),
    Sketcher.Constraint("Coincident", 2, 2, 3, 1),
    Sketcher.Constraint("Coincident", 3, 2, 0, 1),
    Sketcher.Constraint("Vertical", 0),
    Sketcher.Constraint("Vertical", 2),
    Sketcher.Constraint("Coincident", 1, 3, -1, 1),
    Sketcher.Constraint("Coincident", 3, 3, -1, 1),
    Sketcher.Constraint("Horizontal", 0, 2, 1, 1),
    Sketcher.Constraint("Radius", 1, 22.5),
    Sketcher.Constraint("Radius", 3, 24.2),
    Sketcher.Constraint("DistanceX", -1, 1, 0, 2, 5.0),
])
pocket10 = body.newObject("PartDesign::Pocket", "Pocket009")
pocket10.Profile = sketch14
pocket10.Length = 4
pocket10.Reversed = True

# Sketch on XY plane
sketch15 = body.newObject("Sketcher::SketchObject", "Sketch014")
sketch15.AttachmentSupport = (doc.getObject("XY_Plane"), [""])
sketch15.MapMode = "FlatFace"
sketch15.addGeometry([
    Part.LineSegment(App.Vector(3.5, 22.2, 0), App.Vector(3.5, 23.9, 0)),  # 0
    Part.ArcOfCircle(Part.Circle(App.Vector(0, 0, 0), App.Vector(0, 0, 1), 24.2), math.radians(81.68), math.radians(98.32)),  # 1
    Part.LineSegment(App.Vector(-3.5, 23.9, 0), App.Vector(-3.5, 22.2, 0)),  # 2
    Part.ArcOfCircle(Part.Circle(App.Vector(0, 0, 0), App.Vector(0, 0, 1), 22.5), math.radians(81.05), math.radians(98.95)),  # 3
    Part.ArcOfCircle(Part.Circle(App.Vector(0, 0, 0), App.Vector(0, 0, 1), 22.5), math.radians(51.68), math.radians(68.32)),  # 4
    Part.LineSegment(App.Vector(13.9, 17.7, 0), App.Vector(15, 19, 0)),  # 5
    Part.ArcOfCircle(Part.Circle(App.Vector(0, 0, 0), App.Vector(0, 0, 1), 24.2), math.radians(51.68), math.radians(68.32)),  # 6
    Part.LineSegment(App.Vector(8.9, 22.5, 0), App.Vector(8.3, 20.9, 0)),  # 7
    Part.ArcOfCircle(Part.Circle(App.Vector(0, 0, 0), App.Vector(0, 0, 1), 22.5), math.radians(111.68), math.radians(128.32)),  # 8
    Part.LineSegment(App.Vector(-8.3, 20.9, 0), App.Vector(-8.9, 22.5, 0)),  # 9
    Part.ArcOfCircle(Part.Circle(App.Vector(0, 0, 0), App.Vector(0, 0, 1), 24.2), math.radians(111.68), math.radians(128.32)),  # 10
    Part.LineSegment(App.Vector(-15, 19, 0), App.Vector(-13.9, 17.7, 0)),  # 11
], False)
sketch15.addConstraint([
    Sketcher.Constraint("Coincident", 0, 2, 1, 1),
    Sketcher.Constraint("Coincident", 1, 2, 2, 1),
    Sketcher.Constraint("Coincident", 2, 2, 3, 2),
    Sketcher.Constraint("Coincident", 3, 1, 0, 1),
    Sketcher.Constraint("Coincident", 4, 1, 5, 1),
    Sketcher.Constraint("Coincident", 5, 2, 6, 1),
    Sketcher.Constraint("Coincident", 6, 2, 7, 1),
    Sketcher.Constraint("Coincident", 7, 2, 4, 2),
    Sketcher.Constraint("Coincident", 8, 1, 9, 1),
    Sketcher.Constraint("Coincident", 9, 2, 10, 1),
    Sketcher.Constraint("Coincident", 10, 2, 11, 1),
    Sketcher.Constraint("Coincident", 11, 2, 8, 2),
    Sketcher.Constraint("Coincident", 3, 3, -1, 1),
    Sketcher.Constraint("Coincident", 4, 3, -1, 1),
    Sketcher.Constraint("Coincident", 6, 3, -1, 1),
    Sketcher.Constraint("Coincident", 8, 3, -1, 1),
    Sketcher.Constraint("Coincident", 10, 3, -1, 1),
    Sketcher.Constraint("Equal", 3, 4),
    Sketcher.Constraint("Equal", 4, 8),
    Sketcher.Constraint("Equal", 6, 10),
    Sketcher.Constraint("Symmetric", 0, 2, 1, 2, -2),
    Sketcher.Constraint("Parallel", 0, 2),
    Sketcher.Constraint("Horizontal", 7, 2, 8, 1),
    Sketcher.Constraint("Horizontal", 6, 2, 9, 2),
    Sketcher.Constraint("Horizontal", 5, 2, 10, 2),
    Sketcher.Constraint("Horizontal", 4, 1, 11, 2),
    Sketcher.Constraint("Radius", 3, 22.5),
    Sketcher.Constraint("Radius", 6, 24.2),
    Sketcher.Constraint("DistanceX", 1, 2, 0, 2, 7.0),
    Sketcher.Constraint("DistanceY", 5, 2, 6, 2, 3.5),
    Sketcher.Constraint("Radius", 1, 24.199816),
    Sketcher.Constraint("DistanceY", 7, 2, 6, 2, 1.579698),
    Sketcher.Constraint("Distance", 0, 1.71945),
    Sketcher.Constraint("DistanceY", -1, 1, 2, 2, 22.226108),
    Sketcher.Constraint("DistanceX", -1, 1, 4, 1, 13.94988),
    Sketcher.Constraint("DistanceX", -1, 1, 5, 2, 15.003871),
])
pocket11 = body.newObject("PartDesign::Pocket", "Pocket010")
pocket11.Profile = sketch15
pocket11.Length = 4
pocket11.Reversed = True

doc.recompute()
